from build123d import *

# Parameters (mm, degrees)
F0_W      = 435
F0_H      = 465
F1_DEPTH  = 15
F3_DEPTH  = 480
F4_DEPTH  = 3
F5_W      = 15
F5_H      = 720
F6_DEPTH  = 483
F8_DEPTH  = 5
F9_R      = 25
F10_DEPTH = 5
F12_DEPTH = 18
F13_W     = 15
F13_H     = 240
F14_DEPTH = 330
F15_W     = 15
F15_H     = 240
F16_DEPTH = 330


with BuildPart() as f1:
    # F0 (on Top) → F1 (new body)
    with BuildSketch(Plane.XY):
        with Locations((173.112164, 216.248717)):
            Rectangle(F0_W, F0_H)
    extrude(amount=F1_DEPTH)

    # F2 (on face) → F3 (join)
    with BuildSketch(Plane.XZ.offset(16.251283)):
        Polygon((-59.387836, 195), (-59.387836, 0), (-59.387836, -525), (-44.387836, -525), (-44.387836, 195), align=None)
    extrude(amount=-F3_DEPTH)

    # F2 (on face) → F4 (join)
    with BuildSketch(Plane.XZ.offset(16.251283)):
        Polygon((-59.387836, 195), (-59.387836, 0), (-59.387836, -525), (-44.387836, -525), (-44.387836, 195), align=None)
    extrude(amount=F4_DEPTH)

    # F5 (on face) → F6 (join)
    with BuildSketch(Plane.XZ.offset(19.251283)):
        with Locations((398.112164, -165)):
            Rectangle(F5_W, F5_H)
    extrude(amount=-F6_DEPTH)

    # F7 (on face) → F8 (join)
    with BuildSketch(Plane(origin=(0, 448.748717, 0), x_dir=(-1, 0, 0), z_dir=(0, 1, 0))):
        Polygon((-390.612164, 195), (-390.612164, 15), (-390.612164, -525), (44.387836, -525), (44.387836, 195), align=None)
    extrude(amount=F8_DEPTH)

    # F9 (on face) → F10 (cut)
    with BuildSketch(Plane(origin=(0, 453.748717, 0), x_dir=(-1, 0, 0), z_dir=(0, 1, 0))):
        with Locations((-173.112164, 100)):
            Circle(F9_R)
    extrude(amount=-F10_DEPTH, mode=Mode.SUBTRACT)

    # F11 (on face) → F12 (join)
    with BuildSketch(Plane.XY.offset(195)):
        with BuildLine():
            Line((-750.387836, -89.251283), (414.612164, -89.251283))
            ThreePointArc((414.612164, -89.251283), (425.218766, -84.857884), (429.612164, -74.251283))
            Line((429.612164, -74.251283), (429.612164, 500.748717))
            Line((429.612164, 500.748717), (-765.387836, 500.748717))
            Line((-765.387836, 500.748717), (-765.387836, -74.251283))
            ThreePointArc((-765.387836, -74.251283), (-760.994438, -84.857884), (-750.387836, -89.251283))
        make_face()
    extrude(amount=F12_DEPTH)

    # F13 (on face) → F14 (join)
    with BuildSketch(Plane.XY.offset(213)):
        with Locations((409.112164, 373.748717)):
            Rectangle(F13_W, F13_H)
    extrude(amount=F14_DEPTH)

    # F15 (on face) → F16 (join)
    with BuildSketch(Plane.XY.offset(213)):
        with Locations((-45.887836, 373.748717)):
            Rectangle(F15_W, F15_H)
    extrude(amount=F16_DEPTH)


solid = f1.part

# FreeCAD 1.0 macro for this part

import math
import FreeCAD as App
import Part
import Sketcher

V = App.Vector


def add_polygon(sketch, points):
    """Adds a closed chain of lines whose ends are joined by coincident constraints."""
    first, n = sketch.GeometryCount, len(points)
    for a, b in zip(points, points[1:] + points[:1]):
        sketch.addGeometry(Part.LineSegment(App.Vector(*a, 0), App.Vector(*b, 0)), False)
    for i in range(n):
        sketch.addConstraint(Sketcher.Constraint("Coincident", first + i, 2, first + (i + 1) % n, 1))

doc = App.newDocument("Part")
body = doc.addObject("PartDesign::Body", "Body")

# Sketch on XY plane
sketch1 = body.newObject("Sketcher::SketchObject", "Sketch")
sketch1.AttachmentSupport = (doc.getObject("XY_Plane"), [""])
sketch1.MapMode = "FlatFace"
add_polygon(sketch1, [(-44, 449), (-44, -16), (391, -16), (391, 449)])  # lines 0-3
sketch1.addConstraint([
    Sketcher.Constraint("Vertical", 0),
    Sketcher.Constraint("Horizontal", 1),
    Sketcher.Constraint("Vertical", 2),
    Sketcher.Constraint("Horizontal", 3),
    Sketcher.Constraint("DistanceX", 1, 1, 1, 2, 435.0),
    Sketcher.Constraint("DistanceY", 0, 2, 0, 1, 465.0),
    Sketcher.Constraint("DistanceX", 0, 2, -1, 1, 44.387836),
    Sketcher.Constraint("DistanceY", 0, 2, -1, 1, 16.251283),
])
pad1 = body.newObject("PartDesign::Pad", "Pad")
pad1.Profile = sketch1
pad1.Length = 15

# Sketch on XZ plane
sketch2 = body.newObject("Sketcher::SketchObject", "Sketch001")
sketch2.AttachmentSupport = (doc.getObject("XZ_Plane"), [""])
sketch2.MapMode = "FlatFace"
sketch2.AttachmentOffset = App.Placement(V(0, 0, 16.251283), App.Rotation())
add_polygon(sketch2, [(-59, 195), (-59, -525), (-44, -525), (-44, 195)])  # lines 0-3
sketch2.addConstraint([
    Sketcher.Constraint("Vertical", 0),
    Sketcher.Constraint("Horizontal", 1),
    Sketcher.Constraint("Vertical", 2),
    Sketcher.Constraint("Horizontal", 3),
    Sketcher.Constraint("DistanceX", 1, 1, 1, 2, 15.0),
    Sketcher.Constraint("DistanceY", 0, 2, 0, 1, 720.0),
    Sketcher.Constraint("DistanceY", 0, 2, -1, 1, 525.0),
    Sketcher.Constraint("DistanceX", 0, 2, -1, 1, 59.387836),
])
pad2 = body.newObject("PartDesign::Pad", "Pad001")
pad2.Profile = sketch2
pad2.Length = 480
pad2.Reversed = True

# Sketch on XZ plane
sketch3 = body.newObject("Sketcher::SketchObject", "Sketch002")
sketch3.AttachmentSupport = (doc.getObject("XZ_Plane"), [""])
sketch3.MapMode = "FlatFace"
sketch3.AttachmentOffset = App.Placement(V(0, 0, 16.251283), App.Rotation())
add_polygon(sketch3, [(-59, 195), (-59, -525), (-44, -525), (-44, 195)])  # lines 0-3
sketch3.addConstraint([
    Sketcher.Constraint("Vertical", 0),
    Sketcher.Constraint("Horizontal", 1),
    Sketcher.Constraint("Vertical", 2),
    Sketcher.Constraint("Horizontal", 3),
    Sketcher.Constraint("DistanceX", 1, 1, 1, 2, 15.0),
    Sketcher.Constraint("DistanceY", 0, 2, 0, 1, 720.0),
    Sketcher.Constraint("DistanceY", 0, 2, -1, 1, 525.0),
    Sketcher.Constraint("DistanceX", 0, 2, -1, 1, 59.387836),
])
pad3 = body.newObject("PartDesign::Pad", "Pad002")
pad3.Profile = sketch3
pad3.Length = 3

# Sketch on XZ plane
sketch4 = body.newObject("Sketcher::SketchObject", "Sketch003")
sketch4.AttachmentSupport = (doc.getObject("XZ_Plane"), [""])
sketch4.MapMode = "FlatFace"
sketch4.AttachmentOffset = App.Placement(V(0, 0, 19.251283), App.Rotation())
add_polygon(sketch4, [(391, 195), (391, -525), (406, -525), (406, 195)])  # lines 0-3
sketch4.addConstraint([
    Sketcher.Constraint("Vertical", 0),
    Sketcher.Constraint("Horizontal", 1),
    Sketcher.Constraint("Vertical", 2),
    Sketcher.Constraint("Horizontal", 3),
    Sketcher.Constraint("DistanceX", 1, 1, 1, 2, 15.0),
    Sketcher.Constraint("DistanceY", 0, 2, 0, 1, 720.0),
    Sketcher.Constraint("DistanceY", 0, 2, -1, 1, 525.0),
    Sketcher.Constraint("DistanceX", -1, 1, 0, 2, 390.612164),
])
pad4 = body.newObject("PartDesign::Pad", "Pad003")
pad4.Profile = sketch4
pad4.Length = 483
pad4.Reversed = True

# Sketch on XZ plane
sketch5 = body.newObject("Sketcher::SketchObject", "Sketch004")
sketch5.AttachmentSupport = (doc.getObject("XZ_Plane"), [""])
sketch5.MapMode = "FlatFace"
sketch5.AttachmentOffset = App.Placement(V(0, 0, -448.748717), App.Rotation())
add_polygon(sketch5, [(391, 195), (391, -525), (-44, -525), (-44, 195)])  # lines 0-3
sketch5.addConstraint([
    Sketcher.Constraint("Vertical", 0),
    Sketcher.Constraint("Horizontal", 1),
    Sketcher.Constraint("Vertical", 2),
    Sketcher.Constraint("Horizontal", 3),
    Sketcher.Constraint("DistanceX", 1, 2, 1, 1, 435.0),
    Sketcher.Constraint("DistanceY", 0, 2, 0, 1, 720.0),
    Sketcher.Constraint("DistanceY", 0, 2, -1, 1, 525.0),
    Sketcher.Constraint("DistanceX", -1, 1, 0, 2, 390.612164),
])
pad5 = body.newObject("PartDesign::Pad", "Pad004")
pad5.Profile = sketch5
pad5.Length = 5
pad5.Reversed = True

# Sketch on XZ plane
sketch6 = body.newObject("Sketcher::SketchObject", "Sketch005")
sketch6.AttachmentSupport = (doc.getObject("XZ_Plane"), [""])
sketch6.MapMode = "FlatFace"
sketch6.AttachmentOffset = App.Placement(V(0, 0, -453.748717), App.Rotation())
sketch6.addGeometry(Part.Circle(V(173, 100, 0), V(0, 0, 1), 25), False)
sketch6.addConstraint([
    Sketcher.Constraint("Diameter", 0, 50.0),
    Sketcher.Constraint("DistanceY", -1, 1, 0, 3, 100.0),
    Sketcher.Constraint("DistanceX", -1, 1, 0, 3, 173.112164),
])
pocket1 = body.newObject("PartDesign::Pocket", "Pocket")
pocket1.Profile = sketch6
pocket1.Length = 5
pocket1.Reversed = True

# Sketch on XY plane
sketch7 = body.newObject("Sketcher::SketchObject", "Sketch006")
sketch7.AttachmentSupport = (doc.getObject("XY_Plane"), [""])
sketch7.MapMode = "FlatFace"
sketch7.AttachmentOffset = App.Placement(V(0, 0, 195), App.Rotation())
sketch7.addGeometry([
    Part.LineSegment(V(-750, -89, 0), V(415, -89, 0)),  # 0
    Part.ArcOfCircle(Part.Circle(V(415, -74, 0), V(0, 0, 1), 15), math.radians(-90), math.radians(0)),  # 1
    Part.LineSegment(V(430, -74, 0), V(430, 501, 0)),  # 2
    Part.LineSegment(V(430, 501, 0), V(-765, 501, 0)),  # 3
    Part.LineSegment(V(-765, 501, 0), V(-765, -74, 0)),  # 4
    Part.ArcOfCircle(Part.Circle(V(-750, -74, 0), V(0, 0, 1), 15), math.radians(-180), math.radians(-90)),  # 5
], False)
sketch7.addConstraint([
    Sketcher.Constraint("Tangent", 0, 2, 1, 1),
    Sketcher.Constraint("Tangent", 1, 2, 2, 1),
    Sketcher.Constraint("Coincident", 2, 2, 3, 1),
    Sketcher.Constraint("Coincident", 3, 2, 4, 1),
    Sketcher.Constraint("Tangent", 4, 2, 5, 1),
    Sketcher.Constraint("Tangent", 5, 2, 0, 1),
    Sketcher.Constraint("Horizontal", 0),
    Sketcher.Constraint("Vertical", 2),
    Sketcher.Constraint("Horizontal", 3),
    Sketcher.Constraint("Vertical", 4),
    Sketcher.Constraint("Equal", 1, 5),
    Sketcher.Constraint("Radius", 1, 15.000001),
    Sketcher.Constraint("DistanceX", 0, 1, 0, 2, 1165.0),
    Sketcher.Constraint("DistanceY", 2, 1, 2, 2, 575.0),
    Sketcher.Constraint("DistanceX", -1, 1, 1, 3, 414.612163),
    Sketcher.Constraint("DistanceY", 1, 3, -1, 1, 74.251282),
])
pad6 = body.newObject("PartDesign::Pad", "Pad005")
pad6.Profile = sketch7
pad6.Length = 18

# Sketch on XY plane
sketch8 = body.newObject("Sketcher::SketchObject", "Sketch007")
sketch8.AttachmentSupport = (doc.getObject("XY_Plane"), [""])
sketch8.MapMode = "FlatFace"
sketch8.AttachmentOffset = App.Placement(V(0, 0, 213), App.Rotation())
add_polygon(sketch8, [(402, 494), (402, 254), (417, 254), (417, 494)])  # lines 0-3
sketch8.addConstraint([
    Sketcher.Constraint("Vertical", 0),
    Sketcher.Constraint("Horizontal", 1),
    Sketcher.Constraint("Vertical", 2),
    Sketcher.Constraint("Horizontal", 3),
    Sketcher.Constraint("DistanceX", 1, 1, 1, 2, 15.0),
    Sketcher.Constraint("DistanceY", 0, 2, 0, 1, 240.0),
    Sketcher.Constraint("DistanceX", -1, 1, 0, 2, 401.612164),
    Sketcher.Constraint("DistanceY", -1, 1, 0, 2, 253.748717),
])
pad7 = body.newObject("PartDesign::Pad", "Pad006")
pad7.Profile = sketch8
pad7.Length = 330

# Sketch on XY plane
sketch9 = body.newObject("Sketcher::SketchObject", "Sketch008")
sketch9.AttachmentSupport = (doc.getObject("XY_Plane"), [""])
sketch9.MapMode = "FlatFace"
sketch9.AttachmentOffset = App.Placement(V(0, 0, 213), App.Rotation())
add_polygon(sketch9, [(-53, 494), (-53, 254), (-38, 254), (-38, 494)])  # lines 0-3
sketch9.addConstraint([
    Sketcher.Constraint("Vertical", 0),
    Sketcher.Constraint("Horizontal", 1),
    Sketcher.Constraint("Vertical", 2),
    Sketcher.Constraint("Horizontal", 3),
    Sketcher.Constraint("DistanceX", 1, 1, 1, 2, 15.0),
    Sketcher.Constraint("DistanceY", 0, 2, 0, 1, 240.0),
    Sketcher.Constraint("DistanceX", 0, 2, -1, 1, 53.387836),
    Sketcher.Constraint("DistanceY", -1, 1, 0, 2, 253.748717),
])
pad8 = body.newObject("PartDesign::Pad", "Pad007")
pad8.Profile = sketch9
pad8.Length = 330

doc.recompute()
